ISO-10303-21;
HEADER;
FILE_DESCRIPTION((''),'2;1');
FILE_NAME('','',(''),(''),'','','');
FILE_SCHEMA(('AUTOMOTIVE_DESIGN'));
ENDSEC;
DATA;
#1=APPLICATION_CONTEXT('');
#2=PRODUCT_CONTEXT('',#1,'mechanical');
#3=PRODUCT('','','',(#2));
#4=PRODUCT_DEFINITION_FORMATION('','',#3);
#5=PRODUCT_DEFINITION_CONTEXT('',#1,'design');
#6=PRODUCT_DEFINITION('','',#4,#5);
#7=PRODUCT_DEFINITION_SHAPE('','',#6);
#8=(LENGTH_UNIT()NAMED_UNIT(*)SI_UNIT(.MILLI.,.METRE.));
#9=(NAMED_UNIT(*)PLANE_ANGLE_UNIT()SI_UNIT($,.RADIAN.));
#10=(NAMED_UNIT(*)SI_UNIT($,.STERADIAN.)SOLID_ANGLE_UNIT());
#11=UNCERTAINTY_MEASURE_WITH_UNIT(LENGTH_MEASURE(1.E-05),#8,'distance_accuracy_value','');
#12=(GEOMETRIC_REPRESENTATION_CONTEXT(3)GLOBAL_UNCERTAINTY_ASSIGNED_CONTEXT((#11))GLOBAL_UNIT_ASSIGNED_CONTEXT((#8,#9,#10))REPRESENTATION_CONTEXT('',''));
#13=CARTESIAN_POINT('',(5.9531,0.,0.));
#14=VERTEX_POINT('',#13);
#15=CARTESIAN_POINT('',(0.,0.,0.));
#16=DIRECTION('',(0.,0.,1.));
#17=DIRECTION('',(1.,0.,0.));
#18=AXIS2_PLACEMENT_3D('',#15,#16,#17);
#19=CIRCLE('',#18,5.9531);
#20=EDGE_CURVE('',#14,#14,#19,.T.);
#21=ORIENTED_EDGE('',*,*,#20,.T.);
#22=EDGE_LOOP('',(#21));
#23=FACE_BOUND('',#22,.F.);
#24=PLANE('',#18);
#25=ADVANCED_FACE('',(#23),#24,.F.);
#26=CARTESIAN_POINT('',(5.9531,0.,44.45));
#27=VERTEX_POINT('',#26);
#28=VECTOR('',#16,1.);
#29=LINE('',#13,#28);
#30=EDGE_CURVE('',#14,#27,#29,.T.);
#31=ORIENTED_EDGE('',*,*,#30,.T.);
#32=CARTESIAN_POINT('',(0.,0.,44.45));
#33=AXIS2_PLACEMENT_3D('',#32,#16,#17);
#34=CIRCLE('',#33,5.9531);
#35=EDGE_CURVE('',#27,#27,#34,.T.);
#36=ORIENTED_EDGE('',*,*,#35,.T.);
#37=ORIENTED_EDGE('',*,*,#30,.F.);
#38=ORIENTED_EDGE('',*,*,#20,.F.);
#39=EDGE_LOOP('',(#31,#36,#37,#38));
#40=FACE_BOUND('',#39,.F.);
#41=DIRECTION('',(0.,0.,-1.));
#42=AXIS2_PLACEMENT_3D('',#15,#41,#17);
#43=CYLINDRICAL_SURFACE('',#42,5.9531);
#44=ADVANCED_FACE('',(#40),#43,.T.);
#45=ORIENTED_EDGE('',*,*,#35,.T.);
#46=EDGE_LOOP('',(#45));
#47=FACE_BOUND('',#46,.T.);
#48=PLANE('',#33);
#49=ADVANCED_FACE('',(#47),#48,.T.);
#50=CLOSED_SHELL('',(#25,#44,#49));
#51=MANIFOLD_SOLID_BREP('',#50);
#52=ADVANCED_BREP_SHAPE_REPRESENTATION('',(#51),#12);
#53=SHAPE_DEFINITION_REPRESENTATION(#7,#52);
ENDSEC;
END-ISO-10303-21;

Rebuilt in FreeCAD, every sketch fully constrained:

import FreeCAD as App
import Part
import Sketcher
from FreeCAD import Vector
Q = App.Units.Quantity

doc = App.newDocument("Part")
params = doc.addObject("Spreadsheet::Sheet", "Params")
for row, (alias, value) in enumerate([
    ("sketch1_diameter", "0.468748 in"),
    ("pad1_length", "1.75 in"),
], start=1):
    params.set(f"A{row}", alias)
    params.set(f"B{row}", "=" + value)
    params.setAlias(f"B{row}", alias)

body = doc.addObject("PartDesign::Body", "Body")

sketch1 = body.newObject("Sketcher::SketchObject", "Sketch")
sketch1.AttachmentSupport = (doc.getObject("XY_Plane"), [""])
sketch1.MapMode = "FlatFace"
sketch1.addGeometry(Part.Circle(Vector(0, 0, 0), Vector(0, 0, 1), 6), False)
sketch1.addConstraint([
    Sketcher.Constraint("Coincident", 0, 3, -1, 1),
    Sketcher.Constraint("Diameter", 0, Q("0.468748 in")),
])
sketch1.setExpression("Constraints[1]", "Params.sketch1_diameter")
pad1 = body.newObject("PartDesign::Pad", "Pad")
pad1.Profile = sketch1
pad1.setExpression("Length", "Params.pad1_length")

doc.recompute()
